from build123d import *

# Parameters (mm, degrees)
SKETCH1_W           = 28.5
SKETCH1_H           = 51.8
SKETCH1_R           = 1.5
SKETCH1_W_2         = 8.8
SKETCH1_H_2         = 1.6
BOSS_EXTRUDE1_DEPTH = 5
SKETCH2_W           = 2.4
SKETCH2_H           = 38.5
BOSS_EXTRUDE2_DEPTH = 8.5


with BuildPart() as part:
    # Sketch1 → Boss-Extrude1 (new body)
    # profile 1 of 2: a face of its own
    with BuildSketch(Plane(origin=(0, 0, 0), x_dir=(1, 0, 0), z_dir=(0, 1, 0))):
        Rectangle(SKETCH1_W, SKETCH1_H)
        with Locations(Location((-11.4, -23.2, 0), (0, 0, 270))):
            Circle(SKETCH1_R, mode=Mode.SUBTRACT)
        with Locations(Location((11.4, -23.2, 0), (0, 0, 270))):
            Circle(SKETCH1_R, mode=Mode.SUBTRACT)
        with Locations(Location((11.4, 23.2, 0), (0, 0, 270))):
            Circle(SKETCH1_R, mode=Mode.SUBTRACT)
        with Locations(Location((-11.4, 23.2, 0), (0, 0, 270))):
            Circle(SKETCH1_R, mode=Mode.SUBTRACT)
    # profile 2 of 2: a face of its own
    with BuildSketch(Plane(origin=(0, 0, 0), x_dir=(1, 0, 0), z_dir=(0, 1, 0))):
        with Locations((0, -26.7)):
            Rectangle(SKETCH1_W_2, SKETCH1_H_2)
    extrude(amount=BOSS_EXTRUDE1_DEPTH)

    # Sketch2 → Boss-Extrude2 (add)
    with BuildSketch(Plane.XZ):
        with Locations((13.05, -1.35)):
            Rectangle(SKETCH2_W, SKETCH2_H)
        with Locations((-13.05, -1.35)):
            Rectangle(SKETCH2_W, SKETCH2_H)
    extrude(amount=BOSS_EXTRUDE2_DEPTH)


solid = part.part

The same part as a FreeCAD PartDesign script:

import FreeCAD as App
import Part
import Sketcher
from FreeCAD import Vector
Q = App.Units.Quantity


def add_polygon(sketch, points):
    """Adds a closed chain of lines whose ends are joined by coincident constraints."""
    first, n = sketch.GeometryCount, len(points)
    for a, b in zip(points, points[1:] + points[:1]):
        sketch.addGeometry(Part.LineSegment(App.Vector(*a, 0), App.Vector(*b, 0)), False)
    for i in range(n):
        sketch.addConstraint(Sketcher.Constraint("Coincident", first + i, 2, first + (i + 1) % n, 1))

doc = App.newDocument("Part")
body = doc.addObject("PartDesign::Body", "Body")

sketch1 = body.newObject("Sketcher::SketchObject", "Sketch")
sketch1.AttachmentSupport = (doc.getObject("XZ_Plane"), [""])
sketch1.MapMode = "FlatFace"
add_polygon(sketch1, [(-14.2, -25.9), (-14.2, 25.9), (-4.4, 25.9), (-4.4, 27.5), (4.4, 27.5), (4.4, 25.9), (14.2, 25.9), (14.2, -25.9)])
sketch1.addGeometry(Part.Circle(Vector(-11.4, 23.2, 0), Vector(0, 0, 1), 1.5), False)
sketch1.addGeometry(Part.Circle(Vector(11.4, 23.2, 0), Vector(0, 0, 1), 1.5), False)
sketch1.addGeometry(Part.Circle(Vector(-11.4, -23.2, 0), Vector(0, 0, 1), 1.5), False)
sketch1.addGeometry(Part.Circle(Vector(11.4, -23.2, 0), Vector(0, 0, 1), 1.5), False)
sketch1.addConstraint([
    Sketcher.Constraint("Vertical", 0),
    Sketcher.Constraint("Horizontal", 1),
    Sketcher.Constraint("Vertical", 2),
    Sketcher.Constraint("Horizontal", 3),
    Sketcher.Constraint("Vertical", 4),
    Sketcher.Constraint("Horizontal", 5),
    Sketcher.Constraint("Vertical", 6),
    Sketcher.Constraint("Horizontal", 7),
    Sketcher.Constraint("Equal", 8, 9),
    Sketcher.Constraint("Equal", 9, 10),
    Sketcher.Constraint("Equal", 10, 11),
    Sketcher.Constraint("Symmetric", 9, 3, 10, 3, -1, 1),
    Sketcher.Constraint("Symmetric", 8, 3, 11, 3, -1, 1),
    Sketcher.Constraint("Symmetric", 0, 2, 6, 2, -1, 1),
    Sketcher.Constraint("Symmetric", 8, 3, 9, 3, -2),
    Sketcher.Constraint("Symmetric", 1, 2, 4, 2, -2),
    Sketcher.Constraint("Diameter", 8, Q("3 mm")),
    Sketcher.Constraint("DistanceX", 3, 1, 3, 2, Q("8.8 mm")),
    Sketcher.Constraint("DistanceX", 7, 2, 7, 1, Q("28.5 mm")),
    Sketcher.Constraint("DistanceY", 0, 1, 0, 2, Q("51.8 mm")),
    Sketcher.Constraint("DistanceY", 2, 1, 2, 2, Q("1.6 mm")),
    Sketcher.Constraint("DistanceX", 8, 3, 1, 2, Q("7 mm")),
    Sketcher.Constraint("DistanceY", -1, 1, 8, 3, Q("23.2 mm")),
])
pad1 = body.newObject("PartDesign::Pad", "Pad")
pad1.Profile = sketch1
pad1.Length = 5
pad1.Reversed = True

sketch2 = body.newObject("Sketcher::SketchObject", "Sketch001")
sketch2.AttachmentSupport = (doc.getObject("XZ_Plane"), [""])
sketch2.MapMode = "FlatFace"
add_polygon(sketch2, [(11.8, 17.9), (11.8, -20.6), (14.2, -20.6), (14.2, 17.9)])
add_polygon(sketch2, [(-14.2, 17.9), (-14.2, -20.6), (-11.8, -20.6), (-11.8, 17.9)])
sketch2.addConstraint([
    Sketcher.Constraint("Vertical", 0),
    Sketcher.Constraint("Horizontal", 1),
    Sketcher.Constraint("Vertical", 2),
    Sketcher.Constraint("Horizontal", 3),
    Sketcher.Constraint("Vertical", 4),
    Sketcher.Constraint("Horizontal", 5),
    Sketcher.Constraint("Vertical", 6),
    Sketcher.Constraint("Horizontal", 7),
    Sketcher.Constraint("Symmetric", 1, 2, 4, 2, -2),
    Sketcher.Constraint("Symmetric", 3, 2, 6, 2, -2),
    Sketcher.Constraint("DistanceX", 1, 1, 1, 2, Q("2.4 mm")),
    Sketcher.Constraint("DistanceY", 0, 2, 0, 1, Q("38.5 mm")),
    Sketcher.Constraint("DistanceY", 0, 2, -1, 1, Q("20.6 mm")),
    Sketcher.Constraint("DistanceX", 4, 2, 0, 2, Q("26.1 mm")),
])
pad2 = body.newObject("PartDesign::Pad", "Pad001")
pad2.Profile = sketch2
pad2.Length = 8.5

doc.recompute()
